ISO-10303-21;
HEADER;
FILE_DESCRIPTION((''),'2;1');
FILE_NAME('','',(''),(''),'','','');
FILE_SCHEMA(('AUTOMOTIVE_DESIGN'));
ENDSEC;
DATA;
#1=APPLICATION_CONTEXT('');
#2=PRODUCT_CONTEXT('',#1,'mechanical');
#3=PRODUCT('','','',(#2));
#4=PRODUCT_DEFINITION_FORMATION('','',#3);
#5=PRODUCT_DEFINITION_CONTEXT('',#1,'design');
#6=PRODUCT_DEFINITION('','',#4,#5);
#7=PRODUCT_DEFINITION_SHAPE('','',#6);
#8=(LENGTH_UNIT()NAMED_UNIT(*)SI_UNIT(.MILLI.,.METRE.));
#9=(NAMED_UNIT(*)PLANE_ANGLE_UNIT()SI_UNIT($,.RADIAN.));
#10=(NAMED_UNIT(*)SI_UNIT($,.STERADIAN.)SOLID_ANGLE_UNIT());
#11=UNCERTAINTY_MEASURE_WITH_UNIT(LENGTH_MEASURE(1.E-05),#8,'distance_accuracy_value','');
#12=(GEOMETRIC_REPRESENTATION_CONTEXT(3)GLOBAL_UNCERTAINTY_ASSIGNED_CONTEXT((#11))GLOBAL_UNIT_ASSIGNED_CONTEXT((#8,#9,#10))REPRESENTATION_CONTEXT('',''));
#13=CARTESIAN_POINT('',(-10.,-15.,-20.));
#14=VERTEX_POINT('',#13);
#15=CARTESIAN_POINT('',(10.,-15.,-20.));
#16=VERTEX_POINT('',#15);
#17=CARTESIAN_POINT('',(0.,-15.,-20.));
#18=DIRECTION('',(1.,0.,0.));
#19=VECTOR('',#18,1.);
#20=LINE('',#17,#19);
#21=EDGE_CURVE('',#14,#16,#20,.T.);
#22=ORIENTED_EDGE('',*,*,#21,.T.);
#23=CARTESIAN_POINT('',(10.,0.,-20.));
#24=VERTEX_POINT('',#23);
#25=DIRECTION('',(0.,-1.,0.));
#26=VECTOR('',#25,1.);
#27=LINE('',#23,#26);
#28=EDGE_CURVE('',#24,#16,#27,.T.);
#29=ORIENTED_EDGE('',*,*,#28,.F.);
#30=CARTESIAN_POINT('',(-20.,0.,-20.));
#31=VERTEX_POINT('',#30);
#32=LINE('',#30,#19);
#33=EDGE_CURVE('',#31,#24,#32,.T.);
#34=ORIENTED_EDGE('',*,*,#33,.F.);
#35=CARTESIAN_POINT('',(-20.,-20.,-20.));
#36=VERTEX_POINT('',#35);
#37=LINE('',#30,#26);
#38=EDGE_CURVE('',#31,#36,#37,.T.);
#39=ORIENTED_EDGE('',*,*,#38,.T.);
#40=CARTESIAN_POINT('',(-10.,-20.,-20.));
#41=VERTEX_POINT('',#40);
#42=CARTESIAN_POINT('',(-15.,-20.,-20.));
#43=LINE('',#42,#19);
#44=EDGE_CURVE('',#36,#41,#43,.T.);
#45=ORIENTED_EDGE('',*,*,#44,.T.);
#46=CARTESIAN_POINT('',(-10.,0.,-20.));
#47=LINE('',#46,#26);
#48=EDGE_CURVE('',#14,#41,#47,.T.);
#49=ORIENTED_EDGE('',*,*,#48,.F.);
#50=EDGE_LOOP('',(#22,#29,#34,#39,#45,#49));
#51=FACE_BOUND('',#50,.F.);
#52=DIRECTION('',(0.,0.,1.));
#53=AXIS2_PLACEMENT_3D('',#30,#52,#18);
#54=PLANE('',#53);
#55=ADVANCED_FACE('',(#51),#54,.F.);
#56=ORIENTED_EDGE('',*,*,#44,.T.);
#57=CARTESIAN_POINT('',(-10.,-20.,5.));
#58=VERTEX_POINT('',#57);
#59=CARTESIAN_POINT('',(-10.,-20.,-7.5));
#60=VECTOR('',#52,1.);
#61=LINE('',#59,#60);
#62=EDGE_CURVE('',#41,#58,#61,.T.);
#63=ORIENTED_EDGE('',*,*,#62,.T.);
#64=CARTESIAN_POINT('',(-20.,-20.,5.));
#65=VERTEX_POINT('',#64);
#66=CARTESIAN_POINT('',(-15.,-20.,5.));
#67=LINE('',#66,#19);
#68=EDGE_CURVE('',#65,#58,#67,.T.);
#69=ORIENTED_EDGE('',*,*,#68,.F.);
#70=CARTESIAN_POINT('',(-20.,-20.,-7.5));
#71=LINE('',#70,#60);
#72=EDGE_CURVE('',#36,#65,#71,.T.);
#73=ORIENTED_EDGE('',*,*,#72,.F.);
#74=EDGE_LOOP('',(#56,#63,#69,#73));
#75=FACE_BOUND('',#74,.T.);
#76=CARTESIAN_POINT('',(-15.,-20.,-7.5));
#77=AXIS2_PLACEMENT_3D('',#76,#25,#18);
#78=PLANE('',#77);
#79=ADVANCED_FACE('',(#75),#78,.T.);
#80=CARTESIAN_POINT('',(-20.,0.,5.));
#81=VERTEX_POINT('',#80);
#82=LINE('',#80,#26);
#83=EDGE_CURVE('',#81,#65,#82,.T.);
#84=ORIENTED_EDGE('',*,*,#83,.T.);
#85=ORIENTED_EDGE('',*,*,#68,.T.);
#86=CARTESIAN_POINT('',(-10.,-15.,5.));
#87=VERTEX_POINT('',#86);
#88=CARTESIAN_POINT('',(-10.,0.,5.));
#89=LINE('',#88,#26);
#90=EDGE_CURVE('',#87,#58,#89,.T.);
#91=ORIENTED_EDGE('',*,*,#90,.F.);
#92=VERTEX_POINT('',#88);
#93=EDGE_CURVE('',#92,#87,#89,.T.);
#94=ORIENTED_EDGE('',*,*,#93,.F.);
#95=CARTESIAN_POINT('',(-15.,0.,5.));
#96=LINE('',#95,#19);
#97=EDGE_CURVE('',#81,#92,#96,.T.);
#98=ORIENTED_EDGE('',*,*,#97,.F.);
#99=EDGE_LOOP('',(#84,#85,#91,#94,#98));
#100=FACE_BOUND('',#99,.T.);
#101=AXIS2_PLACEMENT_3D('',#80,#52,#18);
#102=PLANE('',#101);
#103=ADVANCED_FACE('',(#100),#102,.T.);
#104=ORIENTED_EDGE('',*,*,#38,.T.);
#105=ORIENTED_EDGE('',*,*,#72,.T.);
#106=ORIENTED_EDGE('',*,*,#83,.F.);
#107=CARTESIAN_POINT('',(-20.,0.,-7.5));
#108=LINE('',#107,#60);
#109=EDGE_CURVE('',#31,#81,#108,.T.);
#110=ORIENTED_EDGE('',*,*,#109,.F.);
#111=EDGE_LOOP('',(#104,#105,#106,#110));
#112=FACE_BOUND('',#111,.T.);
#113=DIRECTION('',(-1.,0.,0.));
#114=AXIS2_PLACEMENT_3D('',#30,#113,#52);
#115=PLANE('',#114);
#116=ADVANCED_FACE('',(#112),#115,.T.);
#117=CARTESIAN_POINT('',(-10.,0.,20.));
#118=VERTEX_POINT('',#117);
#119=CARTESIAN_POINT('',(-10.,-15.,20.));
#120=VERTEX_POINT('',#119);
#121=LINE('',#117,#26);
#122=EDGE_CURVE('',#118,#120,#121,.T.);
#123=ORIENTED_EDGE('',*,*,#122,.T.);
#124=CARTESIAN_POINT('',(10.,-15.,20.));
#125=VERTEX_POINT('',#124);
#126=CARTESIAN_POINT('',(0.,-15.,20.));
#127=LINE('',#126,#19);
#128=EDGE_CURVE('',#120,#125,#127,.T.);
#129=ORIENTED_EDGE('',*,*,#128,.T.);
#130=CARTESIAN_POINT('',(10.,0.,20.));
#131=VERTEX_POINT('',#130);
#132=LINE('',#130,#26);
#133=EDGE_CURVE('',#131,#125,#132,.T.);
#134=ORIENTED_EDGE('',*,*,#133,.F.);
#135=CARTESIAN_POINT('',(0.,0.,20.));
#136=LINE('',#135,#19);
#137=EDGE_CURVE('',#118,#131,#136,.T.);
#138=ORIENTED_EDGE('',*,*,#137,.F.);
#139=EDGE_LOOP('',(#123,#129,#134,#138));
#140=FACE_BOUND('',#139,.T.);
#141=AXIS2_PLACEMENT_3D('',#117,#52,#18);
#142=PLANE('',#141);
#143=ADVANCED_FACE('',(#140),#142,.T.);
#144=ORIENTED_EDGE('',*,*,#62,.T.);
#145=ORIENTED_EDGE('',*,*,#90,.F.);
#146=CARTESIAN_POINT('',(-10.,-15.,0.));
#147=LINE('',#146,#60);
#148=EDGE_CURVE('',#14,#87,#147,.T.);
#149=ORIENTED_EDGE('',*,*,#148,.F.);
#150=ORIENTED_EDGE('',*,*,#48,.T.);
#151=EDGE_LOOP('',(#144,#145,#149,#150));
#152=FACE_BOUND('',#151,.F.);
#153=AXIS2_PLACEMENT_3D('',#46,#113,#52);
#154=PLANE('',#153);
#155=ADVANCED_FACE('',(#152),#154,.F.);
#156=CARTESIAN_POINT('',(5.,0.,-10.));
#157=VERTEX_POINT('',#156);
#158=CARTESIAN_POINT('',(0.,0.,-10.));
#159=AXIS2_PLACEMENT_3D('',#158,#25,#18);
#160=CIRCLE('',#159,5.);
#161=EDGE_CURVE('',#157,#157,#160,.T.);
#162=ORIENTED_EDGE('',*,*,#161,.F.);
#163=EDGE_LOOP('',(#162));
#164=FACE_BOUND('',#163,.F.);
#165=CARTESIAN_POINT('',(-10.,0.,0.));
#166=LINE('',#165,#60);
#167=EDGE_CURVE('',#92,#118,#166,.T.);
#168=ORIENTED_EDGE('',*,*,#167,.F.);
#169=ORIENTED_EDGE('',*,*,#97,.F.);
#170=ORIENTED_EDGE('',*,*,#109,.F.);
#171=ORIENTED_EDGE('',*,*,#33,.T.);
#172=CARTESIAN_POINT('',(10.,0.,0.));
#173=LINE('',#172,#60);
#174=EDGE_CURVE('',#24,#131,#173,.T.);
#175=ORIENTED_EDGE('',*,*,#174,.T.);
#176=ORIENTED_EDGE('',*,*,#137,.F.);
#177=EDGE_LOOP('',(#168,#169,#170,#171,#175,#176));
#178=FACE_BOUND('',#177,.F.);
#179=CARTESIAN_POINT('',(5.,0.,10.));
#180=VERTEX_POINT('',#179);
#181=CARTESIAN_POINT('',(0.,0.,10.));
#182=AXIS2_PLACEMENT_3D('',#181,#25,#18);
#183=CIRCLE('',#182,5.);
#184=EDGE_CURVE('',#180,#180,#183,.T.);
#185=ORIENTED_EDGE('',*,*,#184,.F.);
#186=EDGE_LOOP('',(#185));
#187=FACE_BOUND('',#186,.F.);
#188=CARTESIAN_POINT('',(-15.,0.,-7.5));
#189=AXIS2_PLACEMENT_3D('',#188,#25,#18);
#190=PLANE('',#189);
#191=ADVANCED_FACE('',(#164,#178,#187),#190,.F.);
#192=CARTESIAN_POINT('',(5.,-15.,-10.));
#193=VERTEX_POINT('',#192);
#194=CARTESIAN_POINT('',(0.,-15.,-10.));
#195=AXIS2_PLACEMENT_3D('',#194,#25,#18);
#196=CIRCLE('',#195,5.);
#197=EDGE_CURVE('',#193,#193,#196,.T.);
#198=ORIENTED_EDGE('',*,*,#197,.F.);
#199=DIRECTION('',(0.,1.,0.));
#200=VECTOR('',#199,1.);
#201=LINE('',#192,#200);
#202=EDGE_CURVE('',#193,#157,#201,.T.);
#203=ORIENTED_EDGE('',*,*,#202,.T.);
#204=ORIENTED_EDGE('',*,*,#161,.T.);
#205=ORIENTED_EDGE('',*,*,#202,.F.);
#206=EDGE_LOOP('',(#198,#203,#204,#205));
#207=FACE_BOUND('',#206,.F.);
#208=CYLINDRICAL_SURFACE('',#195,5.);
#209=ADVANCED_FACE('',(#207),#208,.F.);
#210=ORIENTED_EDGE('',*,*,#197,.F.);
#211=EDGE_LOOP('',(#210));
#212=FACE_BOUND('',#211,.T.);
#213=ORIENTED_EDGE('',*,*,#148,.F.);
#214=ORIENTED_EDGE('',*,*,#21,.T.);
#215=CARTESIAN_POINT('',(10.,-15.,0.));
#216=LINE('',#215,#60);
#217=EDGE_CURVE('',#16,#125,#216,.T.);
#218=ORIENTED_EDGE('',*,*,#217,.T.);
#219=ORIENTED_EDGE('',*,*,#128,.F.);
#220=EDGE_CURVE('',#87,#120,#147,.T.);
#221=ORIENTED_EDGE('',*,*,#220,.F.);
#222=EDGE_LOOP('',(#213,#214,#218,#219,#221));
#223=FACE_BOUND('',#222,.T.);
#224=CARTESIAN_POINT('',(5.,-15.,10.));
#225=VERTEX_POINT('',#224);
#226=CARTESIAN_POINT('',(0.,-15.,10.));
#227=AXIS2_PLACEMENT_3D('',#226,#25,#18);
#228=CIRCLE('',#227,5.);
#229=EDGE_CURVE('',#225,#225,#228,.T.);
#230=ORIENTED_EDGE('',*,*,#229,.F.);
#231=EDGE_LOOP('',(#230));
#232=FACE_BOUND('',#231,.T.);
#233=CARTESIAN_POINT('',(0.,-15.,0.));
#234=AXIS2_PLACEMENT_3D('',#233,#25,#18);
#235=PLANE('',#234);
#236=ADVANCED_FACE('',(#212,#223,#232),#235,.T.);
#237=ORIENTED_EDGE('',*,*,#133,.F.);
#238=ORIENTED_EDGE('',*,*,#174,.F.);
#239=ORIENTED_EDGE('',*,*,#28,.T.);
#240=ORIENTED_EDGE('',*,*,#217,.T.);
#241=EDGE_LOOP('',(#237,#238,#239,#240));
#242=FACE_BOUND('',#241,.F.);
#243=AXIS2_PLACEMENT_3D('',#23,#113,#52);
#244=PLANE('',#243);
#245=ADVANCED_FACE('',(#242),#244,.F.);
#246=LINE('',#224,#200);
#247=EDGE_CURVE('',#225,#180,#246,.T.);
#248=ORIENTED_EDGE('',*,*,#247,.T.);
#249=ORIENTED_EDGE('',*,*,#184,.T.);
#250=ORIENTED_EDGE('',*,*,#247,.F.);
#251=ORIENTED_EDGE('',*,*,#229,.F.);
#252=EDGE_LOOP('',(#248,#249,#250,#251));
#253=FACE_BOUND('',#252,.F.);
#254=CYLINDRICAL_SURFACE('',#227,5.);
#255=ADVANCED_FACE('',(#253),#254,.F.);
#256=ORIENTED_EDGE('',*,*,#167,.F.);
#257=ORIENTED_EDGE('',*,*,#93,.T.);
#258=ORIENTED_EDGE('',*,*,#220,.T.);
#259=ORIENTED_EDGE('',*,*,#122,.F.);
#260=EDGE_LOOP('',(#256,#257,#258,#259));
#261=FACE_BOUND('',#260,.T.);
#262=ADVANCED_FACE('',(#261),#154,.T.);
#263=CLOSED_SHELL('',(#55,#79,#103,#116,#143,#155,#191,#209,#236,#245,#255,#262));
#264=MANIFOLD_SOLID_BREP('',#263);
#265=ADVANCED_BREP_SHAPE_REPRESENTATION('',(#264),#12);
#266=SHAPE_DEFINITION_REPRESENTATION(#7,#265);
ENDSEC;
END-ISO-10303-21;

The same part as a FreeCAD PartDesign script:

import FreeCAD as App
import Part
import Sketcher

V = App.Vector


def add_polygon(sketch, points):
    """Adds a closed chain of lines whose ends are joined by coincident constraints."""
    first, n = sketch.GeometryCount, len(points)
    for a, b in zip(points, points[1:] + points[:1]):
        sketch.addGeometry(Part.LineSegment(App.Vector(*a, 0), App.Vector(*b, 0)), False)
    for i in range(n):
        sketch.addConstraint(Sketcher.Constraint("Coincident", first + i, 2, first + (i + 1) % n, 1))

doc = App.newDocument("Part")
body = doc.addObject("PartDesign::Body", "Body")

# Sketch on XZ plane
sketch1 = doc.addObject("Sketcher::SketchObject", "Sketch")
body.addObject(sketch1)
sketch1.AttachmentSupport = (doc.XZ_Plane, [""])
sketch1.MapMode = "FlatFace"
add_polygon(sketch1, [(-10, 20), (-10, -20), (10, -20), (10, 20)])  # lines 0-3
sketch1.addConstraint([
    Sketcher.Constraint("Vertical", 0),
    Sketcher.Constraint("Horizontal", 1),
    Sketcher.Constraint("Vertical", 2),
    Sketcher.Constraint("Horizontal", 3),
    Sketcher.Constraint("Symmetric", 0, 2, 2, 2, -1, 1),
    Sketcher.Constraint("DistanceX", 1, 1, 1, 2, 20.0),
    Sketcher.Constraint("DistanceY", 0, 2, 0, 1, 40.0),
])
pad1 = doc.addObject("PartDesign::Pad", "Pad")
body.addObject(pad1)
pad1.Profile = sketch1
pad1.Length = 15

# Sketch on XZ plane
sketch2 = doc.addObject("Sketcher::SketchObject", "Sketch001")
body.addObject(sketch2)
sketch2.AttachmentSupport = (doc.XZ_Plane, [""])
sketch2.MapMode = "FlatFace"
add_polygon(sketch2, [(-20, 5), (-20, -20), (-10, -20), (-10, 5)])  # lines 0-3
sketch2.addConstraint([
    Sketcher.Constraint("Vertical", 0),
    Sketcher.Constraint("Horizontal", 1),
    Sketcher.Constraint("Vertical", 2),
    Sketcher.Constraint("Horizontal", 3),
    Sketcher.Constraint("DistanceX", 1, 1, 1, 2, 10.0),
    Sketcher.Constraint("DistanceY", 0, 2, 0, 1, 25.0),
    Sketcher.Constraint("DistanceX", 0, 2, -1, 1, 20.0),
    Sketcher.Constraint("DistanceY", 0, 2, -1, 1, 20.0),
])
pad2 = doc.addObject("PartDesign::Pad", "Pad001")
body.addObject(pad2)
pad2.Profile = sketch2
pad2.Length = 20

# Sketch on XZ plane
sketch3 = doc.addObject("Sketcher::SketchObject", "Sketch002")
body.addObject(sketch3)
sketch3.AttachmentSupport = (doc.XZ_Plane, [""])
sketch3.MapMode = "FlatFace"
sketch3.AttachmentOffset = App.Placement(V(0, 0, 15), App.Rotation())
sketch3.addGeometry([
    Part.Circle(V(0, 10, 0), V(0, 0, 1), 5),
    Part.Circle(V(0, -10, 0), V(0, 0, 1), 5),
], False)
sketch3.addConstraint([
    Sketcher.Constraint("Equal", 0, 1),
    Sketcher.Constraint("Symmetric", 0, 3, 1, 3, -1, 1),
    Sketcher.Constraint("PointOnObject", 0, 3, -2),
    Sketcher.Constraint("Diameter", 0, 10.0),
    Sketcher.Constraint("DistanceY", -1, 1, 0, 3, 10.0),
])
pocket1 = doc.addObject("PartDesign::Pocket", "Pocket")
body.addObject(pocket1)
pocket1.Profile = sketch3
pocket1.Length = 15

doc.recompute()
